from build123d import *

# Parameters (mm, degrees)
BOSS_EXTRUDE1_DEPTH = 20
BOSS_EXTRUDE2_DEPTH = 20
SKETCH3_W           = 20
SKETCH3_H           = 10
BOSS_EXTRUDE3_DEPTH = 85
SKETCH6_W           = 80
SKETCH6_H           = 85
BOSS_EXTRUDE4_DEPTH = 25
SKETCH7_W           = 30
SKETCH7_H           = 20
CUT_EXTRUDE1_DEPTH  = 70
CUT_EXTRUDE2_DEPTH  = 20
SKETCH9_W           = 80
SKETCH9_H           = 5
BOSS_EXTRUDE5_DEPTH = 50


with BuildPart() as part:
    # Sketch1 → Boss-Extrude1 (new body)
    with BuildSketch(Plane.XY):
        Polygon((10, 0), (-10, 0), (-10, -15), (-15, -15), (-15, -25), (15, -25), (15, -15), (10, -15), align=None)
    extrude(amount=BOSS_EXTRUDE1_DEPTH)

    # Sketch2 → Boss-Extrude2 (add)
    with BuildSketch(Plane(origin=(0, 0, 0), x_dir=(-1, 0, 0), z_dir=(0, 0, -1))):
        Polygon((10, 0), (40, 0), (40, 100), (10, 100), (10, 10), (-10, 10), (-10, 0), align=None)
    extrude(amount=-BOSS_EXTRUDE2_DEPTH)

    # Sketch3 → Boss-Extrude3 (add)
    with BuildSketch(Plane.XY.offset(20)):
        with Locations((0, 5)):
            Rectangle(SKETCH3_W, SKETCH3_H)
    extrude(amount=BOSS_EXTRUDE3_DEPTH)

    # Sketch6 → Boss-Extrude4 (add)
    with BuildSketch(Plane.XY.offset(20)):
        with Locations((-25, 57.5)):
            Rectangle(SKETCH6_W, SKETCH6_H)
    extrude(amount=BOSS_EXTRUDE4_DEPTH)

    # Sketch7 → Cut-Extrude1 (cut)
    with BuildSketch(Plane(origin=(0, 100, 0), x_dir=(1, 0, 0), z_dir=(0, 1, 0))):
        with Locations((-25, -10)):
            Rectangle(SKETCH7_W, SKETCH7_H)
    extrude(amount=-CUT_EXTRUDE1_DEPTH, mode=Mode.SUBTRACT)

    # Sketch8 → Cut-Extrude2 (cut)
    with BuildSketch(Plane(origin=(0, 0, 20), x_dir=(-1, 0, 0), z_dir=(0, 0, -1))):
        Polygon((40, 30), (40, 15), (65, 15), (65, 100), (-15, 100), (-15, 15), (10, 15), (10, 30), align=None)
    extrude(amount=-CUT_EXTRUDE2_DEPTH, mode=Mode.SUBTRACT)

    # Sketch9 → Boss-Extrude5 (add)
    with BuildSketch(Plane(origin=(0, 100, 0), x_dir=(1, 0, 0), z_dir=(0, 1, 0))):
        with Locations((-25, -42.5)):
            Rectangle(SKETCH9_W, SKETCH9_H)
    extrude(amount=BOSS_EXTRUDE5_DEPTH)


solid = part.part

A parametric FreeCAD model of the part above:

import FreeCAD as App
import Part
import Sketcher

V = App.Vector
Q = App.Units.Quantity


def add_polygon(sketch, points):
    """Adds a closed chain of lines whose ends are joined by coincident constraints."""
    first, n = sketch.GeometryCount, len(points)
    for a, b in zip(points, points[1:] + points[:1]):
        sketch.addGeometry(Part.LineSegment(App.Vector(*a, 0), App.Vector(*b, 0)), False)
    for i in range(n):
        sketch.addConstraint(Sketcher.Constraint("Coincident", first + i, 2, first + (i + 1) % n, 1))

doc = App.newDocument("Part")
body = doc.addObject("PartDesign::Body", "Body")

# Sketch on XY plane
sketch1 = doc.addObject("Sketcher::SketchObject", "Sketch")
body.addObject(sketch1)
sketch1.AttachmentSupport = (doc.XY_Plane, [""])
sketch1.MapMode = "FlatFace"
add_polygon(sketch1, [(10, 0), (-10, 0), (-10, -15), (-15, -15), (-15, -25), (15, -25), (15, -15), (10, -15)])  # lines 0-7
sketch1.addConstraint(Sketcher.Constraint("Horizontal", 0))
sketch1.addConstraint(Sketcher.Constraint("Vertical", 1))
sketch1.addConstraint(Sketcher.Constraint("Horizontal", 2))
sketch1.addConstraint(Sketcher.Constraint("Vertical", 3))
sketch1.addConstraint(Sketcher.Constraint("Horizontal", 4))
sketch1.addConstraint(Sketcher.Constraint("Vertical", 5))
sketch1.addConstraint(Sketcher.Constraint("Horizontal", 6))
sketch1.addConstraint(Sketcher.Constraint("Vertical", 7))
sketch1.addConstraint(Sketcher.Constraint("Symmetric", 0, 2, 7, 2, -1, 1))
sketch1.addConstraint(Sketcher.Constraint("Symmetric", 2, 2, 5, 2, -2))
sketch1.addConstraint(Sketcher.Constraint("DistanceX", 0, 2, 0, 1, Q("20 mm")))
sketch1.addConstraint(Sketcher.Constraint("DistanceX", 2, 2, 2, 1, Q("5 mm")))
sketch1.addConstraint(Sketcher.Constraint("DistanceY", 1, 2, 1, 1, Q("15 mm")))
sketch1.addConstraint(Sketcher.Constraint("DistanceY", 3, 2, 3, 1, Q("10 mm")))
pad1 = doc.addObject("PartDesign::Pad", "Pad")
body.addObject(pad1)
pad1.Profile = sketch1
pad1.Length = 20

# Sketch on XY plane
sketch2 = doc.addObject("Sketcher::SketchObject", "Sketch001")
body.addObject(sketch2)
sketch2.AttachmentSupport = (doc.XY_Plane, [""])
sketch2.MapMode = "FlatFace"
add_polygon(sketch2, [(-40, 0), (-40, 100), (-10, 100), (-10, 10), (10, 10), (10, 0)])  # lines 0-5
sketch2.addConstraint(Sketcher.Constraint("Vertical", 0))
sketch2.addConstraint(Sketcher.Constraint("Horizontal", 1))
sketch2.addConstraint(Sketcher.Constraint("Vertical", 2))
sketch2.addConstraint(Sketcher.Constraint("Horizontal", 3))
sketch2.addConstraint(Sketcher.Constraint("Vertical", 4))
sketch2.addConstraint(Sketcher.Constraint("Horizontal", 5))
sketch2.addConstraint(Sketcher.Constraint("PointOnObject", 4, 2, -1))
sketch2.addConstraint(Sketcher.Constraint("DistanceX", 1, 1, 1, 2, Q("30 mm")))
sketch2.addConstraint(Sketcher.Constraint("DistanceX", 3, 1, 3, 2, Q("20 mm")))
sketch2.addConstraint(Sketcher.Constraint("DistanceY", 0, 1, 0, 2, Q("100 mm")))
sketch2.addConstraint(Sketcher.Constraint("DistanceY", 2, 2, 2, 1, Q("90 mm")))
sketch2.addConstraint(Sketcher.Constraint("DistanceX", 0, 2, -1, 1, Q("40 mm")))
pad2 = doc.addObject("PartDesign::Pad", "Pad001")
body.addObject(pad2)
pad2.Profile = sketch2
pad2.Length = 20

# Sketch on XY plane
sketch3 = doc.addObject("Sketcher::SketchObject", "Sketch002")
body.addObject(sketch3)
sketch3.AttachmentSupport = (doc.XY_Plane, [""])
sketch3.MapMode = "FlatFace"
sketch3.AttachmentOffset = App.Placement(V(0, 0, 20), App.Rotation())
add_polygon(sketch3, [(-10, 10), (-10, 0), (10, 0), (10, 10)])  # lines 0-3
sketch3.addConstraint(Sketcher.Constraint("Vertical", 0))
sketch3.addConstraint(Sketcher.Constraint("Horizontal", 1))
sketch3.addConstraint(Sketcher.Constraint("Vertical", 2))
sketch3.addConstraint(Sketcher.Constraint("Horizontal", 3))
sketch3.addConstraint(Sketcher.Constraint("Symmetric", 0, 2, 1, 2, -1, 1))
sketch3.addConstraint(Sketcher.Constraint("DistanceX", 1, 1, 1, 2, Q("20 mm")))
sketch3.addConstraint(Sketcher.Constraint("DistanceY", 0, 2, 0, 1, Q("10 mm")))
pad3 = doc.addObject("PartDesign::Pad", "Pad002")
body.addObject(pad3)
pad3.Profile = sketch3
pad3.Length = 85

# Sketch on XY plane
sketch4 = doc.addObject("Sketcher::SketchObject", "Sketch003")
body.addObject(sketch4)
sketch4.AttachmentSupport = (doc.XY_Plane, [""])
sketch4.MapMode = "FlatFace"
sketch4.AttachmentOffset = App.Placement(V(0, 0, 20), App.Rotation())
add_polygon(sketch4, [(-65, 100), (-65, 15), (15, 15), (15, 100)])  # lines 0-3
sketch4.addConstraint(Sketcher.Constraint("Vertical", 0))
sketch4.addConstraint(Sketcher.Constraint("Horizontal", 1))
sketch4.addConstraint(Sketcher.Constraint("Vertical", 2))
sketch4.addConstraint(Sketcher.Constraint("Horizontal", 3))
sketch4.addConstraint(Sketcher.Constraint("DistanceX", 1, 1, 1, 2, Q("80 mm")))
sketch4.addConstraint(Sketcher.Constraint("DistanceY", 0, 2, 0, 1, Q("85 mm")))
sketch4.addConstraint(Sketcher.Constraint("DistanceX", 0, 2, -1, 1, Q("65 mm")))
sketch4.addConstraint(Sketcher.Constraint("DistanceY", -1, 1, 0, 2, Q("15 mm")))
pad4 = doc.addObject("PartDesign::Pad", "Pad003")
body.addObject(pad4)
pad4.Profile = sketch4
pad4.Length = 25

# Sketch on XZ plane
sketch5 = doc.addObject("Sketcher::SketchObject", "Sketch004")
body.addObject(sketch5)
sketch5.AttachmentSupport = (doc.XZ_Plane, [""])
sketch5.MapMode = "FlatFace"
sketch5.AttachmentOffset = App.Placement(V(0, 0, -100), App.Rotation())
add_polygon(sketch5, [(-40, 0), (-40, 20), (-10, 20), (-10, 0)])  # lines 0-3
sketch5.addConstraint(Sketcher.Constraint("Vertical", 0))
sketch5.addConstraint(Sketcher.Constraint("Horizontal", 1))
sketch5.addConstraint(Sketcher.Constraint("Vertical", 2))
sketch5.addConstraint(Sketcher.Constraint("Horizontal", 3))
sketch5.addConstraint(Sketcher.Constraint("PointOnObject", 2, 2, -1))
sketch5.addConstraint(Sketcher.Constraint("DistanceX", 1, 1, 1, 2, Q("30 mm")))
sketch5.addConstraint(Sketcher.Constraint("DistanceY", 0, 1, 0, 2, Q("20 mm")))
sketch5.addConstraint(Sketcher.Constraint("DistanceX", 0, 2, -1, 1, Q("40 mm")))
pocket1 = doc.addObject("PartDesign::Pocket", "Pocket")
body.addObject(pocket1)
pocket1.Profile = sketch5
pocket1.Length = 70
pocket1.Reversed = True

# Sketch on XY plane
sketch6 = doc.addObject("Sketcher::SketchObject", "Sketch005")
body.addObject(sketch6)
sketch6.AttachmentSupport = (doc.XY_Plane, [""])
sketch6.MapMode = "FlatFace"
sketch6.AttachmentOffset = App.Placement(V(0, 0, 20), App.Rotation())
add_polygon(sketch6, [(-40, 30), (-40, 15), (-65, 15), (-65, 100), (15, 100), (15, 15), (-10, 15), (-10, 30)])  # lines 0-7
sketch6.addConstraint(Sketcher.Constraint("Vertical", 0))
sketch6.addConstraint(Sketcher.Constraint("Horizontal", 1))
sketch6.addConstraint(Sketcher.Constraint("Vertical", 2))
sketch6.addConstraint(Sketcher.Constraint("Horizontal", 3))
sketch6.addConstraint(Sketcher.Constraint("Vertical", 4))
sketch6.addConstraint(Sketcher.Constraint("Horizontal", 5))
sketch6.addConstraint(Sketcher.Constraint("Vertical", 6))
sketch6.addConstraint(Sketcher.Constraint("Horizontal", 7))
sketch6.addConstraint(Sketcher.Constraint("Horizontal", 1, 2, 4, 2))
sketch6.addConstraint(Sketcher.Constraint("Equal", 1, 5))
sketch6.addConstraint(Sketcher.Constraint("DistanceX", 1, 2, 1, 1, Q("25 mm")))
sketch6.addConstraint(Sketcher.Constraint("DistanceX", 3, 1, 3, 2, Q("80 mm")))
sketch6.addConstraint(Sketcher.Constraint("DistanceY", 0, 2, 0, 1, Q("15 mm")))
sketch6.addConstraint(Sketcher.Constraint("DistanceY", 2, 1, 2, 2, Q("85 mm")))
sketch6.addConstraint(Sketcher.Constraint("DistanceX", 0, 2, -1, 1, Q("40 mm")))
sketch6.addConstraint(Sketcher.Constraint("DistanceY", -1, 1, 0, 2, Q("15 mm")))
pocket2 = doc.addObject("PartDesign::Pocket", "Pocket001")
body.addObject(pocket2)
pocket2.Profile = sketch6
pocket2.Length = 20
pocket2.Reversed = True

# Sketch on XZ plane
sketch7 = doc.addObject("Sketcher::SketchObject", "Sketch006")
body.addObject(sketch7)
sketch7.AttachmentSupport = (doc.XZ_Plane, [""])
sketch7.MapMode = "FlatFace"
sketch7.AttachmentOffset = App.Placement(V(0, 0, -100), App.Rotation())
add_polygon(sketch7, [(-65, 40), (-65, 45), (15, 45), (15, 40)])  # lines 0-3
sketch7.addConstraint(Sketcher.Constraint("Vertical", 0))
sketch7.addConstraint(Sketcher.Constraint("Horizontal", 1))
sketch7.addConstraint(Sketcher.Constraint("Vertical", 2))
sketch7.addConstraint(Sketcher.Constraint("Horizontal", 3))
sketch7.addConstraint(Sketcher.Constraint("DistanceX", 1, 1, 1, 2, Q("80 mm")))
sketch7.addConstraint(Sketcher.Constraint("DistanceY", 0, 1, 0, 2, Q("5 mm")))
sketch7.addConstraint(Sketcher.Constraint("DistanceX", 0, 2, -1, 1, Q("65 mm")))
sketch7.addConstraint(Sketcher.Constraint("DistanceY", -1, 1, 0, 2, Q("45 mm")))
pad5 = doc.addObject("PartDesign::Pad", "Pad004")
body.addObject(pad5)
pad5.Profile = sketch7
pad5.Length = 50
pad5.Reversed = True

doc.recompute()
